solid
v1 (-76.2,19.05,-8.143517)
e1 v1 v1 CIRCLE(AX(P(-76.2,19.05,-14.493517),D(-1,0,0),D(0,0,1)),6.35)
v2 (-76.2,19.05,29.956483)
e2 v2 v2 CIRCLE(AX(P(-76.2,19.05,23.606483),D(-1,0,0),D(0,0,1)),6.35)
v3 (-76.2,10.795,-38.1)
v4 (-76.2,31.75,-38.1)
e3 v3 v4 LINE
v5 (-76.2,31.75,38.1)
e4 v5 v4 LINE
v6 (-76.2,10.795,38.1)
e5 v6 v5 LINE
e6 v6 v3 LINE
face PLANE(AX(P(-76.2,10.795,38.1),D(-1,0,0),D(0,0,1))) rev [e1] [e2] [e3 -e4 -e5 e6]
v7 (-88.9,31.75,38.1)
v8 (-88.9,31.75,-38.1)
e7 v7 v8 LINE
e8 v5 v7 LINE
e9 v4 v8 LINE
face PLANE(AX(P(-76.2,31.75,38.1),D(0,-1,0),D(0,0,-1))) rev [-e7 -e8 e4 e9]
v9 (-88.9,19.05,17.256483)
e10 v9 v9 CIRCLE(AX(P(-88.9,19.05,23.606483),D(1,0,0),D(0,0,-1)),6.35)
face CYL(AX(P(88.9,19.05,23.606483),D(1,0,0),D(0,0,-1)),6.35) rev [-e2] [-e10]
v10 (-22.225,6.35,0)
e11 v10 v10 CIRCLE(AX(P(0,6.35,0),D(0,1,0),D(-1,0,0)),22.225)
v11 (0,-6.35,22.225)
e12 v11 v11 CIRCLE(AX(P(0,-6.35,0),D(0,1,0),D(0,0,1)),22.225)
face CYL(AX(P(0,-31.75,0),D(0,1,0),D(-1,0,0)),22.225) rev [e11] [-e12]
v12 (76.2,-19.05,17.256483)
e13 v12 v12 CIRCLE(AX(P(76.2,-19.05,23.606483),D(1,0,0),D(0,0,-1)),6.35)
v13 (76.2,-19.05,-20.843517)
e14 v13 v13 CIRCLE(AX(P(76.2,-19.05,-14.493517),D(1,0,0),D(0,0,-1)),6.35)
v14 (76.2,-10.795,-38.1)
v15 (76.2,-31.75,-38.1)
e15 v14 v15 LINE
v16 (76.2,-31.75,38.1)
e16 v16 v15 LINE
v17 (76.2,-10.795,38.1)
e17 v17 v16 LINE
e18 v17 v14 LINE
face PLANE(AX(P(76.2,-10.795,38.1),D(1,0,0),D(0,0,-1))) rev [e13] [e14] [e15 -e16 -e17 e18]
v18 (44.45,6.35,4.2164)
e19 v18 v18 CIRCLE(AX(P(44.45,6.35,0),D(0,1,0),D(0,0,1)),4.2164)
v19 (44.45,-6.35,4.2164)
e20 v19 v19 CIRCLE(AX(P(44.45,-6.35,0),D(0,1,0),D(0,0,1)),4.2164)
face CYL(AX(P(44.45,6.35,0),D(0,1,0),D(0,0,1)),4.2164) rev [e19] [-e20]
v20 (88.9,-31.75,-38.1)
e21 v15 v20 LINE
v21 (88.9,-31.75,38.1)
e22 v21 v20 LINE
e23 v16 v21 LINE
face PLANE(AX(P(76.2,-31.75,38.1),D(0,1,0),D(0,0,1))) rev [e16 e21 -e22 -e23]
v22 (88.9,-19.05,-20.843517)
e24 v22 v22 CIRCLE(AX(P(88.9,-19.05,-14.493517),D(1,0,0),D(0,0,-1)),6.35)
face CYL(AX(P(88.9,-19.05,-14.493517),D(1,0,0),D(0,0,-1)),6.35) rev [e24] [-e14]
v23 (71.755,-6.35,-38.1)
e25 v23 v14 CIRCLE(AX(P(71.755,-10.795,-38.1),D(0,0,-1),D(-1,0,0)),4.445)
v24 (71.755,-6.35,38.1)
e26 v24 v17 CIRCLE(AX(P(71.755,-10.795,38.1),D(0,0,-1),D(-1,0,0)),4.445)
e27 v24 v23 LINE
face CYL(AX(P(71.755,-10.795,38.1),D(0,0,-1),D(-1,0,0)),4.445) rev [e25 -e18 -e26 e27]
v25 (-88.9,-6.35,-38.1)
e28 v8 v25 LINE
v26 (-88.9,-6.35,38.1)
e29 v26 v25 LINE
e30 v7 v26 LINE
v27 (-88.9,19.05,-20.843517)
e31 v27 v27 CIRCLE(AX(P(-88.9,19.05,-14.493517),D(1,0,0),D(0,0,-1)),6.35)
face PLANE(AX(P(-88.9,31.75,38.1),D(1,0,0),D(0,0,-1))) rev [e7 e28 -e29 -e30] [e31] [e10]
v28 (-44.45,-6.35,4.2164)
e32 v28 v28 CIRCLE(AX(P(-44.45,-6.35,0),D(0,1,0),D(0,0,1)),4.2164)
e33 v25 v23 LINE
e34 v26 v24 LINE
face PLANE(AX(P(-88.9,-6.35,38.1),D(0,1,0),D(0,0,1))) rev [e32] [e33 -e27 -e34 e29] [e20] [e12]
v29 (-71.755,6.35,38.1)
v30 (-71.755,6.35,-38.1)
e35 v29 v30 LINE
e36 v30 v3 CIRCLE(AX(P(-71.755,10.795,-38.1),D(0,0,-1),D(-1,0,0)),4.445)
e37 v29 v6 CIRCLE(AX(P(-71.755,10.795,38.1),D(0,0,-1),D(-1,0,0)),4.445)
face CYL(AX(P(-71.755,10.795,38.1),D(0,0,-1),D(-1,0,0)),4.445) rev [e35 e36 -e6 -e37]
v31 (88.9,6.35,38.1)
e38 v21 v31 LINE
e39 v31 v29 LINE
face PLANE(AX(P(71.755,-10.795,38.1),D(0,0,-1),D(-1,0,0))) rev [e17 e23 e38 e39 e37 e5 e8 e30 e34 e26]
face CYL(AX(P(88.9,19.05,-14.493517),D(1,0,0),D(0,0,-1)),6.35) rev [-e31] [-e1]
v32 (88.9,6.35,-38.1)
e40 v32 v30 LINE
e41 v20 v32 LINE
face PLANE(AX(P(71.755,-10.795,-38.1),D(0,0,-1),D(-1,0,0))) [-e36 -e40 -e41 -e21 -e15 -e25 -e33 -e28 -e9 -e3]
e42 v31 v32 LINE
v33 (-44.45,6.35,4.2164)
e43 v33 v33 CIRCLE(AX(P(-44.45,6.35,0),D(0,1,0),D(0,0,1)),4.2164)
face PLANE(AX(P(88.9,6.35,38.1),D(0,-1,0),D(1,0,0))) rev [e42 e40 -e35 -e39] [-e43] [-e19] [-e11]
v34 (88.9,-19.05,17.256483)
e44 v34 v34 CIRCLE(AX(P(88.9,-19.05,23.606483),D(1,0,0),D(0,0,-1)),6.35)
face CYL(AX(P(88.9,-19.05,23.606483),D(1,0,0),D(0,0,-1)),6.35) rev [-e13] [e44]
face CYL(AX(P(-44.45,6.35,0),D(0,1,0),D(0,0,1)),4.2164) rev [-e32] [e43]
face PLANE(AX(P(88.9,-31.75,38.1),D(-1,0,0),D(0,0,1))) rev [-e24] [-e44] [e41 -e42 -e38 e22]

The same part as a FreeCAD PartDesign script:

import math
import FreeCAD as App
import Part
import Sketcher

V = App.Vector
Q = App.Units.Quantity

doc = App.newDocument("Part")
body = doc.addObject("PartDesign::Body", "Body")

sketch1 = body.newObject("Sketcher::SketchObject", "Sketch")
sketch1.AttachmentSupport = (doc.getObject("XY_Plane"), [""])
sketch1.MapMode = "FlatFace"
sketch1.addGeometry(Part.LineSegment(V(-88.9, 31.8, 0), V(-88.9, -6.3, 0)), False)
sketch1.addGeometry(Part.LineSegment(V(-88.9, -6.3, 0), V(71.8, -6.3, 0)), False)
sketch1.addGeometry(Part.ArcOfCircle(Part.Circle(V(71.8, -10.8, 0), V(0, 0, 1), 4.4), math.radians(0), math.radians(90)), False)
sketch1.addGeometry(Part.LineSegment(V(76.2, -10.8, 0), V(76.2, -31.8, 0)), False)
sketch1.addGeometry(Part.LineSegment(V(76.2, -31.8, 0), V(88.9, -31.8, 0)), False)
sketch1.addGeometry(Part.LineSegment(V(88.9, -31.8, 0), V(88.9, 6.3, 0)), False)
sketch1.addGeometry(Part.LineSegment(V(88.9, 6.3, 0), V(-71.8, 6.3, 0)), False)
sketch1.addGeometry(Part.ArcOfCircle(Part.Circle(V(-71.8, 10.8, 0), V(0, 0, 1), 4.4), math.radians(-180), math.radians(-90)), False)
sketch1.addGeometry(Part.LineSegment(V(-76.2, 10.8, 0), V(-76.2, 31.8, 0)), False)
sketch1.addGeometry(Part.LineSegment(V(-76.2, 31.8, 0), V(-88.9, 31.8, 0)), False)
sketch1.addConstraint(Sketcher.Constraint("Coincident", 0, 2, 1, 1))
sketch1.addConstraint(Sketcher.Constraint("Tangent", 1, 2, 2, 2))
sketch1.addConstraint(Sketcher.Constraint("Tangent", 2, 1, 3, 1))
sketch1.addConstraint(Sketcher.Constraint("Coincident", 3, 2, 4, 1))
sketch1.addConstraint(Sketcher.Constraint("Coincident", 4, 2, 5, 1))
sketch1.addConstraint(Sketcher.Constraint("Coincident", 5, 2, 6, 1))
sketch1.addConstraint(Sketcher.Constraint("Tangent", 6, 2, 7, 2))
sketch1.addConstraint(Sketcher.Constraint("Tangent", 7, 1, 8, 1))
sketch1.addConstraint(Sketcher.Constraint("Coincident", 8, 2, 9, 1))
sketch1.addConstraint(Sketcher.Constraint("Coincident", 9, 2, 0, 1))
sketch1.addConstraint(Sketcher.Constraint("Vertical", 0))
sketch1.addConstraint(Sketcher.Constraint("Horizontal", 1))
sketch1.addConstraint(Sketcher.Constraint("Vertical", 3))
sketch1.addConstraint(Sketcher.Constraint("Horizontal", 4))
sketch1.addConstraint(Sketcher.Constraint("Vertical", 5))
sketch1.addConstraint(Sketcher.Constraint("Horizontal", 6))
sketch1.addConstraint(Sketcher.Constraint("Vertical", 8))
sketch1.addConstraint(Sketcher.Constraint("Horizontal", 9))
sketch1.addConstraint(Sketcher.Constraint("Equal", 2, 7))
sketch1.addConstraint(Sketcher.Constraint("Symmetric", 2, 3, 7, 3, -1, 1))
sketch1.addConstraint(Sketcher.Constraint("Symmetric", 4, 2, 9, 2, -1, 1))
sketch1.addConstraint(Sketcher.Constraint("DistanceX", 4, 1, 4, 2, Q("0.5 in")))
sketch1.addConstraint(Sketcher.Constraint("DistanceY", 0, 2, 0, 1, Q("1.5 in")))
sketch1.addConstraint(Sketcher.Constraint("DistanceX", -1, 1, 2, 1, Q("3 in")))
sketch1.addConstraint(Sketcher.Constraint("Radius", 2, Q("0.175 in")))
sketch1.addConstraint(Sketcher.Constraint("DistanceY", 3, 2, 1, 2, Q("1 in")))
pad1 = body.newObject("PartDesign::Pad", "Pad")
pad1.Profile = sketch1
pad1.Length = Q("3 in")
pad1.Midplane = True

sketch2 = body.newObject("Sketcher::SketchObject", "Sketch001")
sketch2.AttachmentSupport = (doc.getObject("YZ_Plane"), [""])
sketch2.MapMode = "FlatFace"
sketch2.AttachmentOffset = App.Placement(V(0, 0, 3.5 * 25.4), App.Rotation())
sketch2.addGeometry(Part.Circle(V(-19, 24, 0), V(0, 0, 1), 6), False)
sketch2.addGeometry(Part.Circle(V(-19, -14, 0), V(0, 0, 1), 6), False)
sketch2.addGeometry(Part.Circle(V(19, 24, 0), V(0, 0, 1), 6), False)
sketch2.addGeometry(Part.Circle(V(19, -14, 0), V(0, 0, 1), 6), False)
sketch2.addConstraint(Sketcher.Constraint("Equal", 0, 1))
sketch2.addConstraint(Sketcher.Constraint("Equal", 1, 2))
sketch2.addConstraint(Sketcher.Constraint("Equal", 2, 3))
sketch2.addConstraint(Sketcher.Constraint("Symmetric", 0, 3, 2, 3, -2))
sketch2.addConstraint(Sketcher.Constraint("Symmetric", 1, 3, 3, 3, -2))
sketch2.addConstraint(Sketcher.Constraint("Vertical", 0, 3, 1, 3))
sketch2.addConstraint(Sketcher.Constraint("Diameter", 0, Q("0.5 in")))
sketch2.addConstraint(Sketcher.Constraint("DistanceY", 1, 3, 0, 3, Q("1.5 in")))
sketch2.addConstraint(Sketcher.Constraint("DistanceX", 0, 3, 2, 3, Q("1.5 in")))
sketch2.addConstraint(Sketcher.Constraint("DistanceY", -1, 1, 0, 3, Q("23.606483 mm")))
doc.recompute()
hole = body.newObject("PartDesign::Hole", "Hole")
hole.Profile = sketch2
hole.ThreadType = "None"
hole.Diameter = Q("0.5 in")
hole.DepthType = "ThroughAll"

sketch3 = body.newObject("Sketcher::SketchObject", "Sketch002")
sketch3.AttachmentSupport = (doc.getObject("XZ_Plane"), [""])
sketch3.MapMode = "FlatFace"
sketch3.AttachmentOffset = App.Placement(V(0, 0, -0.25 * 25.4), App.Rotation())
sketch3.addGeometry(Part.Circle(V(0, 0, 0), V(0, 0, 1), 22), False)
sketch3.addConstraint(Sketcher.Constraint("Coincident", 0, 3, -1, 1))
sketch3.addConstraint(Sketcher.Constraint("Diameter", 0, Q("1.75 in")))
pocket1 = body.newObject("PartDesign::Pocket", "Pocket")
pocket1.Profile = sketch3
pocket1.Type = "ThroughAll"
pocket1.Reversed = True

sketch4 = body.newObject("Sketcher::SketchObject", "Sketch003")
sketch4.AttachmentSupport = (doc.getObject("XZ_Plane"), [""])
sketch4.MapMode = "FlatFace"
sketch4.AttachmentOffset = App.Placement(V(0, 0, -0.25 * 25.4), App.Rotation())
sketch4.addGeometry(Part.Circle(V(44.5, 0, 0), V(0, 0, 1), 4.2), False)
sketch4.addGeometry(Part.Circle(V(-44.5, 0, 0), V(0, 0, 1), 4.2), False)
sketch4.addConstraint(Sketcher.Constraint("Equal", 0, 1))
sketch4.addConstraint(Sketcher.Constraint("Symmetric", 0, 3, 1, 3, -1, 1))
sketch4.addConstraint(Sketcher.Constraint("PointOnObject", 0, 3, -1))
sketch4.addConstraint(Sketcher.Constraint("Diameter", 0, Q("0.332 in")))
sketch4.addConstraint(Sketcher.Constraint("DistanceX", 1, 3, 0, 3, Q("3.5 in")))
doc.recompute()
hole2 = body.newObject("PartDesign::Hole", "Hole001")
hole2.Profile = sketch4
hole2.ThreadType = "None"
hole2.Diameter = Q("0.332 in")
hole2.DepthType = "ThroughAll"
hole2.Reversed = True

doc.recompute()
